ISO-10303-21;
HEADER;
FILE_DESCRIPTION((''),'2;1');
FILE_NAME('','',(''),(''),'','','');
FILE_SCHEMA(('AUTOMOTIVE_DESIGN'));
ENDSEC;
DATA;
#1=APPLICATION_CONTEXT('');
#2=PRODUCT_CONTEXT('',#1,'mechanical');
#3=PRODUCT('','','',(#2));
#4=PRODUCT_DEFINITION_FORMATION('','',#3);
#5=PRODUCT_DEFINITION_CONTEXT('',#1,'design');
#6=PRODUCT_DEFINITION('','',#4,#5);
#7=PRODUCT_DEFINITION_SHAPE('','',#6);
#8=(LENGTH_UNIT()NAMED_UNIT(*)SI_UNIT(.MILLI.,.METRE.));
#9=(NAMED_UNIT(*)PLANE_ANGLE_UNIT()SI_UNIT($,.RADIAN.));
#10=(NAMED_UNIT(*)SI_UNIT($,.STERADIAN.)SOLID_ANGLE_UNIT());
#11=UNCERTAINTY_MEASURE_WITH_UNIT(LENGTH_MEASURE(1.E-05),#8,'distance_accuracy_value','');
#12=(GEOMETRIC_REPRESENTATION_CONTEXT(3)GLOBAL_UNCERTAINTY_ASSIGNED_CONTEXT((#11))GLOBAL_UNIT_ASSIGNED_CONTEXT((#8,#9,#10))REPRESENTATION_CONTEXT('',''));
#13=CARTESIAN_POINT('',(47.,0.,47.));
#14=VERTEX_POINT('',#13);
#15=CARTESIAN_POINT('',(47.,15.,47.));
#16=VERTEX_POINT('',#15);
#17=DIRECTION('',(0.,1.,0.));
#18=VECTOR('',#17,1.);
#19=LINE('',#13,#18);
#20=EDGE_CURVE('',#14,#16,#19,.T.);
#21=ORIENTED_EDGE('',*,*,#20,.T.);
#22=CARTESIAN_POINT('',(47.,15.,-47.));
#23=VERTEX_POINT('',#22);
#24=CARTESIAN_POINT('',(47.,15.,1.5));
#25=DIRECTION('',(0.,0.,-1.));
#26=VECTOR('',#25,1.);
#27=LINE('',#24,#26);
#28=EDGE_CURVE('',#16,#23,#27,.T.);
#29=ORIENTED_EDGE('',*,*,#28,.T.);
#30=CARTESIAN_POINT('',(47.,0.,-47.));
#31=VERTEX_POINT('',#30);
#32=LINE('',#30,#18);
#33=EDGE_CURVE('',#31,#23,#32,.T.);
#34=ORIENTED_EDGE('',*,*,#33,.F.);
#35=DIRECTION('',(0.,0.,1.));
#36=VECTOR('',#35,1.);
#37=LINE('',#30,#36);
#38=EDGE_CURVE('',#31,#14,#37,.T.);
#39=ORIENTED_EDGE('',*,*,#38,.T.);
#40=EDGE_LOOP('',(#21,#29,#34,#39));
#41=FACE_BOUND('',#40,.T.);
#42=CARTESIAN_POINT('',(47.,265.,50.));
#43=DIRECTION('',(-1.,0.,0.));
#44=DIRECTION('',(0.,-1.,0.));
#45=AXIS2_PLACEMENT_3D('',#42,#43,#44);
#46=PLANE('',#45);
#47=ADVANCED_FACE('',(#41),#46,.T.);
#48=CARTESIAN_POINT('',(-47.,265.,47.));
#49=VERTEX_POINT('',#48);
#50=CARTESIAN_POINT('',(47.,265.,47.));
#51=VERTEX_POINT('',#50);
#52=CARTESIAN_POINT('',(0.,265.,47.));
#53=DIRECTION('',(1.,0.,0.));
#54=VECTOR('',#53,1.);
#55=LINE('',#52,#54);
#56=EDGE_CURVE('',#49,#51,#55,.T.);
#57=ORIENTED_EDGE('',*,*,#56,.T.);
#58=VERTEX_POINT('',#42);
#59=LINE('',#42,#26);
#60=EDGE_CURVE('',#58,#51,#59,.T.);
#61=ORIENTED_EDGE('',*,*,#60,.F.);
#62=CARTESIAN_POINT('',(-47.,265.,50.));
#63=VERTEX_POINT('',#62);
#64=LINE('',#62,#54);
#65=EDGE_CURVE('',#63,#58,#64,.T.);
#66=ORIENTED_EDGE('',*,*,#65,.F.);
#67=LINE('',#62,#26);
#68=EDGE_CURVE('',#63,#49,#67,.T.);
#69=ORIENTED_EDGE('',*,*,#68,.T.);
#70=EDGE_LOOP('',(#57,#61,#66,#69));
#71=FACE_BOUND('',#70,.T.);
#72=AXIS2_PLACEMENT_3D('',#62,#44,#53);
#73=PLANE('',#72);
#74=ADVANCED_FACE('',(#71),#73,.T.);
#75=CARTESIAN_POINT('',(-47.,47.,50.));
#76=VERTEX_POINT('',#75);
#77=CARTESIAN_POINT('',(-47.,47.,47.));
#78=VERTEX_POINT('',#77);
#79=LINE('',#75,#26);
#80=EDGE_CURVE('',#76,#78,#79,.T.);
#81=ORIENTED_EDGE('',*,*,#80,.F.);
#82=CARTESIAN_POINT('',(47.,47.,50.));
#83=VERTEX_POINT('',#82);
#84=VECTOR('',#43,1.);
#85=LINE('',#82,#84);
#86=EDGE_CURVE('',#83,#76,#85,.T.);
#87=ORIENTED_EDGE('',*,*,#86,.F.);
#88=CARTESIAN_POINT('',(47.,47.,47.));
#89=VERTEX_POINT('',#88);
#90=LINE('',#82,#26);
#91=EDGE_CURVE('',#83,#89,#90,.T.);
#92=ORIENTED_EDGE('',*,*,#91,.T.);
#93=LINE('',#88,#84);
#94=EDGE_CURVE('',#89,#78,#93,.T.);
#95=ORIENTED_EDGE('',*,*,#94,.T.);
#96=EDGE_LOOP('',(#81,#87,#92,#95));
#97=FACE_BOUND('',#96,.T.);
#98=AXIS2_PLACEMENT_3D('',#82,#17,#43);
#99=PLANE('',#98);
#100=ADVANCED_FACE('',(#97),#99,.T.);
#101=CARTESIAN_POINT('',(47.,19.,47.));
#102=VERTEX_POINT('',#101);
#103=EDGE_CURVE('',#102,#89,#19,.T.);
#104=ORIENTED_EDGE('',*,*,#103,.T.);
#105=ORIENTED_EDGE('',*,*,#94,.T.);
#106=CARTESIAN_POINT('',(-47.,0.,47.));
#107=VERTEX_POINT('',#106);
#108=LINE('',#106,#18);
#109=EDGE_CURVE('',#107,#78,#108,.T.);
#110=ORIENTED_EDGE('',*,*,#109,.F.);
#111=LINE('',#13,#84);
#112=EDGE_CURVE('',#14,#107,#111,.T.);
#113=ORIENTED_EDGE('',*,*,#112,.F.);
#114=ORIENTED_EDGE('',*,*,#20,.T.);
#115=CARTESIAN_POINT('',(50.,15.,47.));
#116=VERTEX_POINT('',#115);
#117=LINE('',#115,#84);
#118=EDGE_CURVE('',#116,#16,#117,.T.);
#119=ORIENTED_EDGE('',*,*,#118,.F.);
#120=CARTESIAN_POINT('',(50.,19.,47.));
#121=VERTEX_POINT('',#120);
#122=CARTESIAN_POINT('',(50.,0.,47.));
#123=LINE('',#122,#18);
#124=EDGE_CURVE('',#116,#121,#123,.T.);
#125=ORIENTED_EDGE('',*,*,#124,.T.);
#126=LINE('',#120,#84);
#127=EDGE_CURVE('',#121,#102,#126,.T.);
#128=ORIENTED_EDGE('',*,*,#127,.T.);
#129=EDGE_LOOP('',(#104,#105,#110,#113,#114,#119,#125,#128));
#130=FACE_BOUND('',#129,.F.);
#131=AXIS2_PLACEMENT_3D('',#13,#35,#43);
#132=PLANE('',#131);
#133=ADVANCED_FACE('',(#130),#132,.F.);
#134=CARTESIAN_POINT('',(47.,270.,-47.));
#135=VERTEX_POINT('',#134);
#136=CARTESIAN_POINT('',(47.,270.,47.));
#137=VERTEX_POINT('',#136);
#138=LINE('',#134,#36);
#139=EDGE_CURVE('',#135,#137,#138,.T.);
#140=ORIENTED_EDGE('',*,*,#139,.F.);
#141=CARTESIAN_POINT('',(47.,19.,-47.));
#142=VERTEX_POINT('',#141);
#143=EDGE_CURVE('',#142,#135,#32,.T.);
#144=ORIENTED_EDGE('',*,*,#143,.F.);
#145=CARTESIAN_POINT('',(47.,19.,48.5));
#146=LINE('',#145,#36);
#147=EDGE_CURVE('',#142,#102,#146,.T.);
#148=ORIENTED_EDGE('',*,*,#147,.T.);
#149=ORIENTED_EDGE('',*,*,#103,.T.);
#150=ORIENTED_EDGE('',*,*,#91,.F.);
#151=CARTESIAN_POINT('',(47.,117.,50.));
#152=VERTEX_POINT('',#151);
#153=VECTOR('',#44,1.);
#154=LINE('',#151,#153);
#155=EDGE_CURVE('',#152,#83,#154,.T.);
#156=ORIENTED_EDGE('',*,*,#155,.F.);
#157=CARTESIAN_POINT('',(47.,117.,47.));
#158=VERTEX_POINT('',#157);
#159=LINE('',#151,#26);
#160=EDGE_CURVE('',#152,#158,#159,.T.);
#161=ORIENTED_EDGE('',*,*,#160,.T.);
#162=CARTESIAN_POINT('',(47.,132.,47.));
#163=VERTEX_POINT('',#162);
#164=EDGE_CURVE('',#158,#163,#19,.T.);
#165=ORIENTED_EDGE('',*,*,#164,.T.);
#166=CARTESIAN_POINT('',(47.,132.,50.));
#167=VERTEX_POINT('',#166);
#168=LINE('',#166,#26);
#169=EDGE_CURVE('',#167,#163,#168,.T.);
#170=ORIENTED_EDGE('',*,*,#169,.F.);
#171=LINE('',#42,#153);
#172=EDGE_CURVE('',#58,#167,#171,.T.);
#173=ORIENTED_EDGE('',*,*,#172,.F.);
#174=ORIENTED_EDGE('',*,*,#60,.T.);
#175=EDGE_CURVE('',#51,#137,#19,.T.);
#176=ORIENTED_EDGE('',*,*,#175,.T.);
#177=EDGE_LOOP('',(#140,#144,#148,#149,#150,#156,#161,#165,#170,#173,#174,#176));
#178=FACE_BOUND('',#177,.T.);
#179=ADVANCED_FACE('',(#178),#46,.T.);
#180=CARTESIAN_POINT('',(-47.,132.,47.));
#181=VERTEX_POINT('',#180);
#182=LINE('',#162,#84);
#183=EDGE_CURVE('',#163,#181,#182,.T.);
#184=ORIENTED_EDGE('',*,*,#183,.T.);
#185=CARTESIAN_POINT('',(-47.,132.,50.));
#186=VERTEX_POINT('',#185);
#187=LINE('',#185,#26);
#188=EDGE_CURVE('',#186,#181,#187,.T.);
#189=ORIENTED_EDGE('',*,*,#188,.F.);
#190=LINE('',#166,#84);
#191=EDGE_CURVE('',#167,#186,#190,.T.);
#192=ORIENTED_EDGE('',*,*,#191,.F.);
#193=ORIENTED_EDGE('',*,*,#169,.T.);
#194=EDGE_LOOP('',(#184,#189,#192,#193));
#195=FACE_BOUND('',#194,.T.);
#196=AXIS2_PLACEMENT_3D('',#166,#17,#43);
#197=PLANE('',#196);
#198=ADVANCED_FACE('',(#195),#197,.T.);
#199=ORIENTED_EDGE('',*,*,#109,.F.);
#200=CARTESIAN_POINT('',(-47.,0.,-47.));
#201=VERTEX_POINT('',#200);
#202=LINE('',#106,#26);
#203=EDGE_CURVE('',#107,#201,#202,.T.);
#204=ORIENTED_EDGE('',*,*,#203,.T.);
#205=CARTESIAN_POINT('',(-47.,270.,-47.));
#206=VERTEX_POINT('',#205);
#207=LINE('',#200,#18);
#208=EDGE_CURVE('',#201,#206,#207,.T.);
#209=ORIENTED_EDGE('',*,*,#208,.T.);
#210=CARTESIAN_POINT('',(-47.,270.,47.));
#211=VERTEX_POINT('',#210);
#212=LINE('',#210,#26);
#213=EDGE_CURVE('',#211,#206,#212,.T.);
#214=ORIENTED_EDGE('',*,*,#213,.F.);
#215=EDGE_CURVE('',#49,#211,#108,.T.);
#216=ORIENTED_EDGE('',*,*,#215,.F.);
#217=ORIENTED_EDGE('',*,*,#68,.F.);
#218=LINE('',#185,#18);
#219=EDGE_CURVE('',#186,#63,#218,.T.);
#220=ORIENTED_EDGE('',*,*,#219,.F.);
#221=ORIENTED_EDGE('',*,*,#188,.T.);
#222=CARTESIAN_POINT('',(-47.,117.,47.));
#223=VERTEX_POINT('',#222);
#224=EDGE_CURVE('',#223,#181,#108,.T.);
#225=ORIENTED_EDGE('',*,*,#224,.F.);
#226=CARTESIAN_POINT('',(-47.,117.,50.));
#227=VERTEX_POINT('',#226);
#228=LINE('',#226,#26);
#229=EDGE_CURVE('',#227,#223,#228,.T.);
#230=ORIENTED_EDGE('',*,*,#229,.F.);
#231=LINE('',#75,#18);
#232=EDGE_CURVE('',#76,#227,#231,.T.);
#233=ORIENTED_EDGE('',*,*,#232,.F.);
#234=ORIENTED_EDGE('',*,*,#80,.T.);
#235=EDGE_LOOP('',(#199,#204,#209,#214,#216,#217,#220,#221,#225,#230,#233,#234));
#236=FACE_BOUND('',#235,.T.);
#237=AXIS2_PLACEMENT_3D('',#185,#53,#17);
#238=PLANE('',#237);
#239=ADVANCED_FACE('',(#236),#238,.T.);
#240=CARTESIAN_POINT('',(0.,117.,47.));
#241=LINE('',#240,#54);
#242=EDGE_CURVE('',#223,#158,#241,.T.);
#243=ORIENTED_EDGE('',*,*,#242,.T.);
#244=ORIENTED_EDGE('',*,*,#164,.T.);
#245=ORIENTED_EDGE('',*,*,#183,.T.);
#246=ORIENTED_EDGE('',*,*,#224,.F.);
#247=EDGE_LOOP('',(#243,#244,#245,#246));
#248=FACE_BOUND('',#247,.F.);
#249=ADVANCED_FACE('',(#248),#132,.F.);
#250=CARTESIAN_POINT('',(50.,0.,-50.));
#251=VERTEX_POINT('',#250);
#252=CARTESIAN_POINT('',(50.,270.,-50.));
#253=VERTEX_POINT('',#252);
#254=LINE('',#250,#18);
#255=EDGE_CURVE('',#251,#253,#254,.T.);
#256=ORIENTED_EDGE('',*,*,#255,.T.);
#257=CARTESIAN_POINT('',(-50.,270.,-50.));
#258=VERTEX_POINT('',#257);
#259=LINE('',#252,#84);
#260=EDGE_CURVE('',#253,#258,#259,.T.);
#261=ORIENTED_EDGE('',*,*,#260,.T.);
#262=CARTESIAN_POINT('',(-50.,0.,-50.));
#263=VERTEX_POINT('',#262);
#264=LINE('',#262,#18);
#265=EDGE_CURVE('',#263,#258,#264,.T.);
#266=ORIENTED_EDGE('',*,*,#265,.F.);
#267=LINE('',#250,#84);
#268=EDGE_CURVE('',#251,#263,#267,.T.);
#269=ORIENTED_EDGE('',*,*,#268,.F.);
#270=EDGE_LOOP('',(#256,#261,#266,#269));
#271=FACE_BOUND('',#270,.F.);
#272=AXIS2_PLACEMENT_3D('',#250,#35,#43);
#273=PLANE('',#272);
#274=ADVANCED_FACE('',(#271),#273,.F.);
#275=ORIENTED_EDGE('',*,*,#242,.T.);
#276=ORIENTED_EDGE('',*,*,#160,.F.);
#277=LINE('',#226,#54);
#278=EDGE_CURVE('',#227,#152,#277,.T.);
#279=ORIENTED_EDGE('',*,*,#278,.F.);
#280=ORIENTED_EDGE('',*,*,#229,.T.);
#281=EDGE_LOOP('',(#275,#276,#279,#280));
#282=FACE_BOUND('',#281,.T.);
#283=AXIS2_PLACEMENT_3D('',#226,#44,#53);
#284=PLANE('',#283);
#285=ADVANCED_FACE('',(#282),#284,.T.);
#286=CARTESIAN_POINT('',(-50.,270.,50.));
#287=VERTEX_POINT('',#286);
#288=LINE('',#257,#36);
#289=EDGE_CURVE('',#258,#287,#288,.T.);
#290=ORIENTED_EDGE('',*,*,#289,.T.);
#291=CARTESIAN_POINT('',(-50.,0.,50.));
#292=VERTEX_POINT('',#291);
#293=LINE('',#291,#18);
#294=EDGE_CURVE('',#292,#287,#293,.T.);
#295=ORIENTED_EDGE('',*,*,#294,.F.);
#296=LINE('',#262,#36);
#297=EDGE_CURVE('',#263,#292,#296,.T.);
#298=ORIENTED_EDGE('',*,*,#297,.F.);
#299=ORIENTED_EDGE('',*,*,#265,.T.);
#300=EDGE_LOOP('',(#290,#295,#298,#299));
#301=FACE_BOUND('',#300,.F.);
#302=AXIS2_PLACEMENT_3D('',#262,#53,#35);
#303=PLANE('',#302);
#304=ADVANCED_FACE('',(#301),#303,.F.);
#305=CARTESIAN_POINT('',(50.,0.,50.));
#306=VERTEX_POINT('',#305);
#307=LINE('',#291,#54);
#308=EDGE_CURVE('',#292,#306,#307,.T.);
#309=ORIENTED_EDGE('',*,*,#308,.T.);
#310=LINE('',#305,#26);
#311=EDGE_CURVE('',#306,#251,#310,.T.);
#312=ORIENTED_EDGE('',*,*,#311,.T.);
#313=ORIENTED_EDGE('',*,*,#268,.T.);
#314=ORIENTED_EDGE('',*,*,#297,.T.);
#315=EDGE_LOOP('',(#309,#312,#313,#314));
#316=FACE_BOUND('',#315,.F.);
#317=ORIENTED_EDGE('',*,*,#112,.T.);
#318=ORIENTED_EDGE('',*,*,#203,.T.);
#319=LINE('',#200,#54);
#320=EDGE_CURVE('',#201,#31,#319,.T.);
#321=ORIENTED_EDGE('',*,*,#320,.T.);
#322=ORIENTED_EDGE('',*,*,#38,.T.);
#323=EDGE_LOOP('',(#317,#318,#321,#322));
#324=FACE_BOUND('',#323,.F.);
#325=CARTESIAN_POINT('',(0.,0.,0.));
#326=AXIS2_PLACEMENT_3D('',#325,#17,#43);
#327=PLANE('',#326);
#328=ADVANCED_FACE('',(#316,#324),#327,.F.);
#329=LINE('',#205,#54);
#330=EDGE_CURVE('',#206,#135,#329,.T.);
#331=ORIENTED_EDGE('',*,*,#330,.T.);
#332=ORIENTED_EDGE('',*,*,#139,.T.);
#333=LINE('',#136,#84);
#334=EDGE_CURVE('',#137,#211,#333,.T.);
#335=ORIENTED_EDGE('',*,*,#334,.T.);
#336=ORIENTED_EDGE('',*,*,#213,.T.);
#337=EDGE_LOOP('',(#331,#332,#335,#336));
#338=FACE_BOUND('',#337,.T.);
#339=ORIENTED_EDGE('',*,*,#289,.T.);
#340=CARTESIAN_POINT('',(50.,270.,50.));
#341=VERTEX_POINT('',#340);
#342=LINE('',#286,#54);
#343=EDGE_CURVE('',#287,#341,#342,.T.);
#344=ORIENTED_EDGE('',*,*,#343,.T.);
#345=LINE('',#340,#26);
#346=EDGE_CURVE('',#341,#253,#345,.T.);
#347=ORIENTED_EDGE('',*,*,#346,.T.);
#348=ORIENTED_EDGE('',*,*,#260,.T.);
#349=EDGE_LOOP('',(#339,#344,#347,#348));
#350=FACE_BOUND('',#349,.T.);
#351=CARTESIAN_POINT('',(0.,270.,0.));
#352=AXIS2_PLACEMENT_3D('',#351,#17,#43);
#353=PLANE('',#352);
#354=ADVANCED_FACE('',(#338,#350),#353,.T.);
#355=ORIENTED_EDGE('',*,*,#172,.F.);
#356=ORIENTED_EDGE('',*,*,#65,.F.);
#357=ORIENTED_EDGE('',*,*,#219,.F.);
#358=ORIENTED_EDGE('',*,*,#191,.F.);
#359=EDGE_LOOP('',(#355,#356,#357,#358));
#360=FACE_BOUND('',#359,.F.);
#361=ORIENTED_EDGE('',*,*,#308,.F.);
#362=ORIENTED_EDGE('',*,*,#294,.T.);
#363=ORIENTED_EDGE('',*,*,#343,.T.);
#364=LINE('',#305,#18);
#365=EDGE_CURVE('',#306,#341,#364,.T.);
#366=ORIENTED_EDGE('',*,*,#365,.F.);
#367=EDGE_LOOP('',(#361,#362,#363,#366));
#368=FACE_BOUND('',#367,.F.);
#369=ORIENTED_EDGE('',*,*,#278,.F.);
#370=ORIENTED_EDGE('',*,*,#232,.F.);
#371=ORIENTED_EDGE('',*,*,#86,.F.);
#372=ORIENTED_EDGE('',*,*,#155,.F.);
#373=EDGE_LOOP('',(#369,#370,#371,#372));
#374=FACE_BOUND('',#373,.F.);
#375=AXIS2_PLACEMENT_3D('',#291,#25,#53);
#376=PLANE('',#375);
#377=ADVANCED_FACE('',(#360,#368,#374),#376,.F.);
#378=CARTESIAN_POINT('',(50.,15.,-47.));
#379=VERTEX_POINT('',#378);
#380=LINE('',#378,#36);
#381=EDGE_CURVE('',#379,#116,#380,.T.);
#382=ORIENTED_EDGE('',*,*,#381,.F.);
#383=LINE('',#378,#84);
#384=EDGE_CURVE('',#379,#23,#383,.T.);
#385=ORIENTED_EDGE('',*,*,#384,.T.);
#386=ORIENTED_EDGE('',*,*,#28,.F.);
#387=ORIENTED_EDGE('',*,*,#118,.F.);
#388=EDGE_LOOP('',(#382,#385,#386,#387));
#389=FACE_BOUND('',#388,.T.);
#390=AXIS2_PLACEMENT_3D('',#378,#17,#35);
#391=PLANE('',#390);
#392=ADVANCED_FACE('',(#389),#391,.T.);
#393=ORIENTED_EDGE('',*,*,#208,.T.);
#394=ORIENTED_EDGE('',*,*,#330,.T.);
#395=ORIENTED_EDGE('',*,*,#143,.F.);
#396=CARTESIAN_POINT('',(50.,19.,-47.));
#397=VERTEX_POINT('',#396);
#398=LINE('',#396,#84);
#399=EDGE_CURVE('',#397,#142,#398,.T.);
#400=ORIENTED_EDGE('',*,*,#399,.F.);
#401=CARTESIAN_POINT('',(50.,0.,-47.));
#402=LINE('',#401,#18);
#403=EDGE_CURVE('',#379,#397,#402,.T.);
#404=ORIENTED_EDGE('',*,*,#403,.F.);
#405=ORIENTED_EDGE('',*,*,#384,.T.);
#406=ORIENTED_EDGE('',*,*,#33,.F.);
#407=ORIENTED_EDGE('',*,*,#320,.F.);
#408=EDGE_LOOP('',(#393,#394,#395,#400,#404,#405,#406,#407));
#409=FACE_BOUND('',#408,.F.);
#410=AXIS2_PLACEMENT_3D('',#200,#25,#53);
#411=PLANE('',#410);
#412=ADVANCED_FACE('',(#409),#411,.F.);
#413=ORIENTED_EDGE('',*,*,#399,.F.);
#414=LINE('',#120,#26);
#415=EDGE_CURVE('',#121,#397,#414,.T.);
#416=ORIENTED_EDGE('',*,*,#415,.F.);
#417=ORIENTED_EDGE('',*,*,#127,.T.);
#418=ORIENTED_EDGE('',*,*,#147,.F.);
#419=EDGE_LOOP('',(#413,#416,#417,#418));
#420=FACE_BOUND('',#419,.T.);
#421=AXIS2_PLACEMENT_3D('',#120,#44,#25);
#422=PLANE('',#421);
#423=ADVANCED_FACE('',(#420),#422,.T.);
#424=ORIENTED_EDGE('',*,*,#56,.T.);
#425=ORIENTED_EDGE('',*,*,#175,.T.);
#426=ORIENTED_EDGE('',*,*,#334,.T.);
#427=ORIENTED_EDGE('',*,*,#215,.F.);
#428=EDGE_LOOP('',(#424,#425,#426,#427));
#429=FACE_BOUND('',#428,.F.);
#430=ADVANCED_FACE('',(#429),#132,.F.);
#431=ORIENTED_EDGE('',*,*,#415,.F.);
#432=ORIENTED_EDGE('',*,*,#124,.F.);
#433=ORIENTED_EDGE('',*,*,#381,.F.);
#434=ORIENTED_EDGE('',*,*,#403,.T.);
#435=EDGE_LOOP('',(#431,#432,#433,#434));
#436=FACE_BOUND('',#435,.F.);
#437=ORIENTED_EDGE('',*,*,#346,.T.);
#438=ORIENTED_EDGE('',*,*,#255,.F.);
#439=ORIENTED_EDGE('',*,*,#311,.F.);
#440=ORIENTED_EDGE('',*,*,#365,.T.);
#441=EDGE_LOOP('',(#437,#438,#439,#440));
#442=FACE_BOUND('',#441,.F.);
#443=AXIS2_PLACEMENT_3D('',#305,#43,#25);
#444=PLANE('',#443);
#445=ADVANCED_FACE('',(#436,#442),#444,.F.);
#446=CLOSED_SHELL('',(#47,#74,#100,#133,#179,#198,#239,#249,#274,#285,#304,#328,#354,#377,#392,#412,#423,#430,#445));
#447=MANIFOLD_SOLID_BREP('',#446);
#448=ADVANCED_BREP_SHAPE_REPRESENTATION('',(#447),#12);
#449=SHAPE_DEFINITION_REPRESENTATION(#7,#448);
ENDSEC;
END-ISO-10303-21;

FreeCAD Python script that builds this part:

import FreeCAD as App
import Part
import Sketcher
Q = App.Units.Quantity


def add_polygon(sketch, points):
    """Adds a closed chain of lines whose ends are joined by coincident constraints."""
    first, n = sketch.GeometryCount, len(points)
    for a, b in zip(points, points[1:] + points[:1]):
        sketch.addGeometry(Part.LineSegment(App.Vector(*a, 0), App.Vector(*b, 0)), False)
    for i in range(n):
        sketch.addConstraint(Sketcher.Constraint("Coincident", first + i, 2, first + (i + 1) % n, 1))

doc = App.newDocument("Part")
body = doc.addObject("PartDesign::Body", "Body")

# Sketch on XZ plane
sketch1 = doc.addObject("Sketcher::SketchObject", "Sketch")
body.addObject(sketch1)
sketch1.AttachmentSupport = (doc.XZ_Plane, [""])
sketch1.MapMode = "FlatFace"
add_polygon(sketch1, [(-50, -50), (-50, 50), (50, 50), (50, -50)])  # lines 0-3
add_polygon(sketch1, [(47, -47), (47, 47), (-47, 47), (-47, -47)])  # lines 4-7
sketch1.addConstraint(Sketcher.Constraint("Vertical", 0))
sketch1.addConstraint(Sketcher.Constraint("Horizontal", 1))
sketch1.addConstraint(Sketcher.Constraint("Vertical", 2))
sketch1.addConstraint(Sketcher.Constraint("Horizontal", 3))
sketch1.addConstraint(Sketcher.Constraint("Vertical", 4))
sketch1.addConstraint(Sketcher.Constraint("Horizontal", 5))
sketch1.addConstraint(Sketcher.Constraint("Vertical", 6))
sketch1.addConstraint(Sketcher.Constraint("Horizontal", 7))
sketch1.addConstraint(Sketcher.Constraint("Symmetric", 0, 2, 2, 2, -1, 1))
sketch1.addConstraint(Sketcher.Constraint("Symmetric", 4, 2, 6, 2, -1, 1))
sketch1.addConstraint(Sketcher.Constraint("Equal", 3, 0))
sketch1.addConstraint(Sketcher.Constraint("Equal", 7, 4))
sketch1.addConstraint(Sketcher.Constraint("DistanceX", 1, 1, 1, 2, Q("100 mm")))
sketch1.addConstraint(Sketcher.Constraint("DistanceX", 4, 2, 1, 2, Q("3 mm")))
pad1 = doc.addObject("PartDesign::Pad", "Pad")
body.addObject(pad1)
pad1.Profile = sketch1
pad1.Length = 270
pad1.Reversed = True

# Sketch on XY plane
sketch2 = doc.addObject("Sketcher::SketchObject", "Sketch001")
body.addObject(sketch2)
sketch2.AttachmentSupport = (doc.XY_Plane, [""])
sketch2.MapMode = "FlatFace"
sketch2.AttachmentOffset = App.Placement(App.Vector(0, 0, 50), App.Rotation())
add_polygon(sketch2, [(47, 265), (-47, 265), (-47, 132), (47, 132)])  # lines 0-3
add_polygon(sketch2, [(47, 117), (-47, 117), (-47, 47), (47, 47)])  # lines 4-7
sketch2.addConstraint(Sketcher.Constraint("Horizontal", 0))
sketch2.addConstraint(Sketcher.Constraint("Vertical", 1))
sketch2.addConstraint(Sketcher.Constraint("Horizontal", 2))
sketch2.addConstraint(Sketcher.Constraint("Vertical", 3))
sketch2.addConstraint(Sketcher.Constraint("Horizontal", 4))
sketch2.addConstraint(Sketcher.Constraint("Vertical", 5))
sketch2.addConstraint(Sketcher.Constraint("Horizontal", 6))
sketch2.addConstraint(Sketcher.Constraint("Vertical", 7))
sketch2.addConstraint(Sketcher.Constraint("Vertical", 1, 2, 4, 2))
sketch2.addConstraint(Sketcher.Constraint("Vertical", 3, 2, 6, 2))
sketch2.addConstraint(Sketcher.Constraint("DistanceX", 0, 2, 0, 1, Q("94 mm")))
sketch2.addConstraint(Sketcher.Constraint("DistanceY", 1, 2, 1, 1, Q("133 mm")))
sketch2.addConstraint(Sketcher.Constraint("DistanceY", 5, 2, 5, 1, Q("70 mm")))
sketch2.addConstraint(Sketcher.Constraint("DistanceY", 4, 2, 1, 2, Q("15 mm")))
sketch2.addConstraint(Sketcher.Constraint("DistanceX", 0, 2, -1, 1, Q("47 mm")))
sketch2.addConstraint(Sketcher.Constraint("DistanceY", -1, 1, 0, 2, Q("265 mm")))
pocket1 = doc.addObject("PartDesign::Pocket", "Pocket")
body.addObject(pocket1)
pocket1.Profile = sketch2
pocket1.Length = 10

# Sketch on YZ plane
sketch3 = doc.addObject("Sketcher::SketchObject", "Sketch002")
body.addObject(sketch3)
sketch3.AttachmentSupport = (doc.YZ_Plane, [""])
sketch3.MapMode = "FlatFace"
sketch3.AttachmentOffset = App.Placement(App.Vector(0, 0, 50), App.Rotation())
add_polygon(sketch3, [(19, 47), (15, 47), (15, -47), (19, -47)])  # lines 0-3
sketch3.addConstraint(Sketcher.Constraint("Horizontal", 0))
sketch3.addConstraint(Sketcher.Constraint("Vertical", 1))
sketch3.addConstraint(Sketcher.Constraint("Horizontal", 2))
sketch3.addConstraint(Sketcher.Constraint("Vertical", 3))
sketch3.addConstraint(Sketcher.Constraint("DistanceX", 0, 2, 0, 1, Q("4 mm")))
sketch3.addConstraint(Sketcher.Constraint("DistanceX", -1, 1, 0, 2, Q("15 mm")))
sketch3.addConstraint(Sketcher.Constraint("DistanceY", 1, 2, 1, 1, Q("94 mm")))
sketch3.addConstraint(Sketcher.Constraint("DistanceY", -1, 1, 0, 2, Q("47 mm")))
pocket2 = doc.addObject("PartDesign::Pocket", "Pocket001")
body.addObject(pocket2)
pocket2.Profile = sketch3
pocket2.Length = 10

doc.recompute()
